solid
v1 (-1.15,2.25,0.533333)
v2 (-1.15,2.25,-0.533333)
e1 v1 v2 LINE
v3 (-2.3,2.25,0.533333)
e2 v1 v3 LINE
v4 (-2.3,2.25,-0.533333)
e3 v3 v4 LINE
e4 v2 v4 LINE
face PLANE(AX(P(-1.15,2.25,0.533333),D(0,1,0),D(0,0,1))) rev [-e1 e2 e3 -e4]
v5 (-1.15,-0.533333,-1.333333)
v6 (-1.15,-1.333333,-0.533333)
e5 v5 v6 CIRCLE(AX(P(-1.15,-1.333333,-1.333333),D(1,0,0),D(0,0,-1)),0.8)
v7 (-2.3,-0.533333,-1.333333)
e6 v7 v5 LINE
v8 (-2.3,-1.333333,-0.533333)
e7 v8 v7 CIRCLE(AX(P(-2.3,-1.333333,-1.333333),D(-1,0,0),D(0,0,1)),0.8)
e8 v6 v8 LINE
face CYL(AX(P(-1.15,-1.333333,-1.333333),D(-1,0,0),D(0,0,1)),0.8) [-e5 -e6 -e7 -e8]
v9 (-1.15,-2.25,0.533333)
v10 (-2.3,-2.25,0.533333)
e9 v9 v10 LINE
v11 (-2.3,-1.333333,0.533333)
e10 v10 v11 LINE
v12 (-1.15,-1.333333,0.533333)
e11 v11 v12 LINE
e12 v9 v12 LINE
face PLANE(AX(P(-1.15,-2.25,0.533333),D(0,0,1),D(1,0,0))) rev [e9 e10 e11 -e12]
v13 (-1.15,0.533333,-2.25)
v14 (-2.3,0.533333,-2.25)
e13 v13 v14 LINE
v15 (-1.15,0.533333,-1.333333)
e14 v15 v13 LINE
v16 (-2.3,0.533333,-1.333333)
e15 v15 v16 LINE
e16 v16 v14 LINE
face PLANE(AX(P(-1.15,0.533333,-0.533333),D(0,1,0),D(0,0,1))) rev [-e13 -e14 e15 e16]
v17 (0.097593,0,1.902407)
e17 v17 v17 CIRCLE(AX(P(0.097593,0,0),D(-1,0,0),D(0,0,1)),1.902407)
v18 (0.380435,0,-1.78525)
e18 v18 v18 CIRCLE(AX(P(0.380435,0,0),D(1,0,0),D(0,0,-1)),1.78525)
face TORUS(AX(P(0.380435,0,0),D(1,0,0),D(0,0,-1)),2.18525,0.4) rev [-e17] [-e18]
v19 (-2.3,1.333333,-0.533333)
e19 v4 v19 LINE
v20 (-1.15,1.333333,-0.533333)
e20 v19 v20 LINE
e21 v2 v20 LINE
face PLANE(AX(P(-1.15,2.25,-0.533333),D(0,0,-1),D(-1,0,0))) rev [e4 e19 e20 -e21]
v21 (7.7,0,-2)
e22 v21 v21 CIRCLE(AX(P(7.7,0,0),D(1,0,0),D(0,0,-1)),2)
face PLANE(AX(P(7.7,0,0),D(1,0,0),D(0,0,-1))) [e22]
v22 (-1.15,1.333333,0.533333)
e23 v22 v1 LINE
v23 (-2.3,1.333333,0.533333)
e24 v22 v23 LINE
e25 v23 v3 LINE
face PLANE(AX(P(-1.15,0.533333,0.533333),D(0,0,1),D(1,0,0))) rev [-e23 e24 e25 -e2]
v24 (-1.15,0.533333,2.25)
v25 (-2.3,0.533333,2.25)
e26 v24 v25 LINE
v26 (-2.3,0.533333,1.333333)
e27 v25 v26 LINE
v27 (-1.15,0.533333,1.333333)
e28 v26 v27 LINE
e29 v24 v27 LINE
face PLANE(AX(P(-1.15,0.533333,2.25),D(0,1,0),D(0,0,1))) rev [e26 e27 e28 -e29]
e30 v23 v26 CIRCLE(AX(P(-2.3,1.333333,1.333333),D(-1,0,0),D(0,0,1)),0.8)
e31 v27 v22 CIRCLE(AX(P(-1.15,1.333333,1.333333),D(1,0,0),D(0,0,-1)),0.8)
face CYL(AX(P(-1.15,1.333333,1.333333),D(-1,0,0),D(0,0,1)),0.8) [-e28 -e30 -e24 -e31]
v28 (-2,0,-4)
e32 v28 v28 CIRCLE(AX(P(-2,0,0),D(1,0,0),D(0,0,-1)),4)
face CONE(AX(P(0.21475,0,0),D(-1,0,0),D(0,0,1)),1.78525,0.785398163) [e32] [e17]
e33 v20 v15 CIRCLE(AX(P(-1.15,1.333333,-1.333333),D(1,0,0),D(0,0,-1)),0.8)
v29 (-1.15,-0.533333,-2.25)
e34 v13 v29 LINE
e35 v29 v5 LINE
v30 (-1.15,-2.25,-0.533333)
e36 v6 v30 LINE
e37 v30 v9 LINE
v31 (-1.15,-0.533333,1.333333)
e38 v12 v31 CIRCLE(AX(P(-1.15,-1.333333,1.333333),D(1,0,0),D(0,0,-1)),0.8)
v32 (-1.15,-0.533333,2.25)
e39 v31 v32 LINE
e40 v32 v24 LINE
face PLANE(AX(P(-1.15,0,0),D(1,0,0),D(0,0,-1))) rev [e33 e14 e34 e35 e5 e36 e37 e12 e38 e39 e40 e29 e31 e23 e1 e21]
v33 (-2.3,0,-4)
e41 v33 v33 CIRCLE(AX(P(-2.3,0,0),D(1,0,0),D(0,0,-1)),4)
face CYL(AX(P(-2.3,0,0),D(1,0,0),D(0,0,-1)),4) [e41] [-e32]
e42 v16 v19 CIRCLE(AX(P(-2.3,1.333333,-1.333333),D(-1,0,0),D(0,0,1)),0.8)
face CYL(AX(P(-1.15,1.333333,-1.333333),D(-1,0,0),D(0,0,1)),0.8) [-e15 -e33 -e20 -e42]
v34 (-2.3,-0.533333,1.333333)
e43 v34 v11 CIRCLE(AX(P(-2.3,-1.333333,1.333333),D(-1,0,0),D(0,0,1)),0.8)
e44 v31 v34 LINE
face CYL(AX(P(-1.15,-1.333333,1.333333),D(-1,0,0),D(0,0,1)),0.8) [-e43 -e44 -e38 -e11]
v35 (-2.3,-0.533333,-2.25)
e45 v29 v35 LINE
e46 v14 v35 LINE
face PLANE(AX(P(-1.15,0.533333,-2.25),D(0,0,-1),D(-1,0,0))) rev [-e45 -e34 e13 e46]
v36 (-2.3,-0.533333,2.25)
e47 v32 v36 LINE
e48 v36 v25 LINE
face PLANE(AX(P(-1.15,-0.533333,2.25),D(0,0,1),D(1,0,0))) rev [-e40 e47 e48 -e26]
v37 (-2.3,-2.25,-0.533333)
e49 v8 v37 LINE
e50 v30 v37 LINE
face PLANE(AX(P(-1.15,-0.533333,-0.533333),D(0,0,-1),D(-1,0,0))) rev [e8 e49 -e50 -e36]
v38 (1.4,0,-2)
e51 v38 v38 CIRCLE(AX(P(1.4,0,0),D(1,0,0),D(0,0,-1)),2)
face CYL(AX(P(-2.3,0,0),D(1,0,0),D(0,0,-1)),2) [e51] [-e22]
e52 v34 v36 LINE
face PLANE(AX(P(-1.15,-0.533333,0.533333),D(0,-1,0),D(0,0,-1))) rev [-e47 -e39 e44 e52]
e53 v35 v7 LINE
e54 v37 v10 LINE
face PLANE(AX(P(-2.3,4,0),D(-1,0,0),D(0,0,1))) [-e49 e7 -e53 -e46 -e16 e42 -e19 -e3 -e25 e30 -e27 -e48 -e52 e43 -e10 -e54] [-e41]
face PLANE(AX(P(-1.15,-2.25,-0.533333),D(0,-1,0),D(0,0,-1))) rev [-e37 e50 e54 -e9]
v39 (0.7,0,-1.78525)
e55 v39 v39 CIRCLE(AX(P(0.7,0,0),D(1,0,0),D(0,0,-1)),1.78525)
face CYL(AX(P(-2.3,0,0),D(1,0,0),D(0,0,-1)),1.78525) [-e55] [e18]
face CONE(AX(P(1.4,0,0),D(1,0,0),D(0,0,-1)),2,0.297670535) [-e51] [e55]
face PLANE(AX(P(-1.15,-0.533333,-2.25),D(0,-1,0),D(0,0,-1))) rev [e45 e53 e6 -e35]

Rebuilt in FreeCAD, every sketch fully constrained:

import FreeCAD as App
import Part
import Sketcher
from FreeCAD import Vector
Q = App.Units.Quantity


def edges_at(feature, points):
    """Names of the edges that pass closest to the given points."""
    edges = feature.Shape.Edges
    near = lambda p: min(range(len(edges)), key=lambda i: edges[i].distToShape(Part.Vertex(*p))[0])
    return sorted({f"Edge{near(p) + 1}" for p in points})


def add_polygon(sketch, points):
    """Adds a closed chain of lines whose ends are joined by coincident constraints."""
    first, n = sketch.GeometryCount, len(points)
    for a, b in zip(points, points[1:] + points[:1]):
        sketch.addGeometry(Part.LineSegment(App.Vector(*a, 0), App.Vector(*b, 0)), False)
    for i in range(n):
        sketch.addConstraint(Sketcher.Constraint("Coincident", first + i, 2, first + (i + 1) % n, 1))

doc = App.newDocument("Part")
body = doc.addObject("PartDesign::Body", "Body")

# Sketch on XY plane
sketch1 = body.newObject("Sketcher::SketchObject", "Sketch")
sketch1.AttachmentSupport = (doc.getObject("XY_Plane"), [""])
sketch1.MapMode = "FlatFace"
add_polygon(sketch1, [(-2.3, 4), (-2.3, 0), (7.7, 0), (7.7, 2), (1.4, 2), (0.7, 1.79), (0.21, 1.79), (-2, 4)])  # lines 0-7
sketch1.addConstraint([
    Sketcher.Constraint("Vertical", 0),
    Sketcher.Constraint("Horizontal", 1),
    Sketcher.Constraint("Vertical", 2),
    Sketcher.Constraint("Horizontal", 3),
    Sketcher.Constraint("Horizontal", 5),
    Sketcher.Constraint("Horizontal", 7),
    Sketcher.Constraint("PointOnObject", 0, 2, -1),
    Sketcher.Constraint("DistanceX", 1, 1, 1, 2, Q("10 mm")),
    Sketcher.Constraint("DistanceY", 0, 2, 0, 1, Q("4 mm")),
    Sketcher.Constraint("DistanceY", 2, 1, 2, 2, Q("2 mm")),
    Sketcher.Constraint("Angle", 6, Q("135 deg")),
    Sketcher.Constraint("DistanceX", 3, 2, 3, 1, Q("6.3 mm")),
    Sketcher.Constraint("DistanceX", 7, 2, 7, 1, Q("0.3 mm")),
    Sketcher.Constraint("DistanceX", 6, 2, -1, 1, Q("2 mm")),
    Sketcher.Constraint("DistanceX", 0, 2, 4, 2, Q("3 mm")),
    Sketcher.Constraint("Distance", 4, Q("0.7322 mm")),
])
revolution = body.newObject("PartDesign::Revolution", "Revolution")
revolution.Profile = sketch1
revolution.ReferenceAxis = (sketch1, ["H_Axis"])
revolution.Angle = 360

# Sketch on YZ plane
sketch2 = body.newObject("Sketcher::SketchObject", "Sketch001")
sketch2.AttachmentSupport = (doc.getObject("YZ_Plane"), [""])
sketch2.MapMode = "FlatFace"
sketch2.AttachmentOffset = App.Placement(Vector(0, 0, -2.3), App.Rotation())
add_polygon(sketch2, [(-0.5, 0.5), (-0.5, 2.2), (0.5, 2.2), (0.5, 0.5), (2.2, 0.5), (2.2, -0.5), (0.5, -0.5), (0.5, -2.2), (-0.5, -2.2), (-0.5, -0.5), (-2.2, -0.5), (-2.2, 0.5)])  # lines 0-11
sketch2.addConstraint([
    Sketcher.Constraint("Vertical", 0),
    Sketcher.Constraint("Horizontal", 1),
    Sketcher.Constraint("Vertical", 2),
    Sketcher.Constraint("Horizontal", 3),
    Sketcher.Constraint("Vertical", 4),
    Sketcher.Constraint("Horizontal", 5),
    Sketcher.Constraint("Vertical", 6),
    Sketcher.Constraint("Horizontal", 7),
    Sketcher.Constraint("Vertical", 8),
    Sketcher.Constraint("Horizontal", 9),
    Sketcher.Constraint("Vertical", 10),
    Sketcher.Constraint("Horizontal", 11),
    Sketcher.Constraint("Symmetric", 0, 2, 6, 2, -1, 1),
    Sketcher.Constraint("Symmetric", 2, 2, 8, 2, -1, 1),
    Sketcher.Constraint("Symmetric", 4, 2, 10, 2, -1, 1),
    Sketcher.Constraint("Symmetric", 5, 2, 8, 2, -2),
    Sketcher.Constraint("Equal", 11, 0),
    Sketcher.Constraint("Equal", 7, 4),
    Sketcher.Constraint("DistanceY", 6, 2, 1, 2, Q("4.5 mm")),
    Sketcher.Constraint("DistanceX", 1, 1, 1, 2, Q("1.066667 mm")),
])
pocket1 = body.newObject("PartDesign::Pocket", "Pocket")
pocket1.Profile = sketch2
pocket1.Length = 1.15
pocket1.Reversed = True
doc.recompute()

fillet = body.newObject("PartDesign::Fillet", "Fillet")
fillet.Base = (pocket1, edges_at(pocket1, [(0.215, 0, 1.785)]))
fillet.Radius = 0.4
doc.recompute()

fillet2 = body.newObject("PartDesign::Fillet", "Fillet001")
fillet2.Base = (fillet, edges_at(fillet, [
    (-1.725, -0.533, 0.533),
    (-1.725, -0.533, -0.533),
    (-1.725, 0.533, -0.533),
    (-1.725, 0.533, 0.533),
]))
fillet2.Radius = 0.8

doc.recompute()
